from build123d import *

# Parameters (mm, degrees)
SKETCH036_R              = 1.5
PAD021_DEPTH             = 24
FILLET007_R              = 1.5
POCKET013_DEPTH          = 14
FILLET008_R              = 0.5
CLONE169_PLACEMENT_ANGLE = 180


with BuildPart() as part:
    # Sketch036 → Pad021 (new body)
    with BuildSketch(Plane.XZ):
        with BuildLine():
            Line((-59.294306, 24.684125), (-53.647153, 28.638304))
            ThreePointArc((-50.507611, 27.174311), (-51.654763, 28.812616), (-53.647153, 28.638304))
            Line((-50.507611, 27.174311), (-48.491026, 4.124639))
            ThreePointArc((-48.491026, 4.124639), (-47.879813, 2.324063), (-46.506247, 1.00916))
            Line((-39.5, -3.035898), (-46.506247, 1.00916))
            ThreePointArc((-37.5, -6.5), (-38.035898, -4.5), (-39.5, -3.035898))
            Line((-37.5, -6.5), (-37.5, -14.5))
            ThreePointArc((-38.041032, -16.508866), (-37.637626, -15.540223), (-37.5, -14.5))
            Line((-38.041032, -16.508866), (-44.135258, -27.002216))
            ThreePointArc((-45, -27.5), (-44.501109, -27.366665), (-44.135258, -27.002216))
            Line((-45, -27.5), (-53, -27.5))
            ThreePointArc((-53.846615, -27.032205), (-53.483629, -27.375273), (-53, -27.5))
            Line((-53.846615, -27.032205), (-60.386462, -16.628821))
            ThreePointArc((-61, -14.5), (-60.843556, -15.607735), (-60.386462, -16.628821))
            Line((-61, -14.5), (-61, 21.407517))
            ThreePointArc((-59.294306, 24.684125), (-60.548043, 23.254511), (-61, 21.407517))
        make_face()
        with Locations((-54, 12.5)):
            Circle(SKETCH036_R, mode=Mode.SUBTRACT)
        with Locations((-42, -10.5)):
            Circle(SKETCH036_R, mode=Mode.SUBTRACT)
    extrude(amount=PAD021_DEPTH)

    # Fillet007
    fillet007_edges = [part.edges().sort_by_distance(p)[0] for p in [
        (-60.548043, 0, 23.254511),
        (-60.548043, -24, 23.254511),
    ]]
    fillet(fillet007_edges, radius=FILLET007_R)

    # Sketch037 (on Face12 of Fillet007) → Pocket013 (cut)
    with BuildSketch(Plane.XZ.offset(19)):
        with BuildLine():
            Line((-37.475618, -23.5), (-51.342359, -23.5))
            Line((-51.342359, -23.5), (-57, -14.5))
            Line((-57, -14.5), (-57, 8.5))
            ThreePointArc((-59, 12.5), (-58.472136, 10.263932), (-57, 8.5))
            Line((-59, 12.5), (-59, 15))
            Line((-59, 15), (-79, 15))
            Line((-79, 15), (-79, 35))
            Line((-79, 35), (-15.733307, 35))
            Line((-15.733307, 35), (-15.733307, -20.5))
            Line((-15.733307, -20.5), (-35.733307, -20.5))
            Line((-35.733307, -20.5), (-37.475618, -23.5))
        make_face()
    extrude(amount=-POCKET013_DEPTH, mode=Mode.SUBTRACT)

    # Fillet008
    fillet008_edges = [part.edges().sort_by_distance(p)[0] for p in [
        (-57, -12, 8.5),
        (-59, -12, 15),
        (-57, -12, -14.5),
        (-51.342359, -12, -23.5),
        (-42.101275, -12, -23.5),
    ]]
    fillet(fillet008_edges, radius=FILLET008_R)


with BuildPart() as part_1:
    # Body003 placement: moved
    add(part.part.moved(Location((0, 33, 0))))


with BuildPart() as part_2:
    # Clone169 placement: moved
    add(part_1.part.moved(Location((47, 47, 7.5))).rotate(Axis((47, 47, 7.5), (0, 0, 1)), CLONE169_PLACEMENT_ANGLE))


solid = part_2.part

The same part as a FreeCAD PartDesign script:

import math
import FreeCAD as App
import Part
import Sketcher

V = App.Vector
Q = App.Units.Quantity


def edges_at(feature, points):
    """Names of the edges that pass closest to the given points."""
    edges = feature.Shape.Edges
    near = lambda p: min(range(len(edges)), key=lambda i: edges[i].distToShape(Part.Vertex(*p))[0])
    return sorted({f"Edge{near(p) + 1}" for p in points})

doc = App.newDocument("Part")
body = doc.addObject("PartDesign::Body", "Body")

# Sketch on XZ plane
sketch1 = doc.addObject("Sketcher::SketchObject", "Sketch")
body.addObject(sketch1)
sketch1.AttachmentSupport = (doc.XZ_Plane, [""])
sketch1.MapMode = "FlatFace"
sketch1.addGeometry([
    Part.LineSegment(V(-53.647153, 28.638304, 0), V(-59.294306, 24.684125, 0)),  # 0
    Part.ArcOfCircle(Part.Circle(V(-56.999996, 21.407515, 0), V(0, 0, 1), 4.000004), math.radians(125.000034), math.radians(179.99997)),  # 1
    Part.LineSegment(V(-61, 21.407517, 0), V(-61, -14.5, 0)),  # 2
    Part.ArcOfCircle(Part.Circle(V(-56.999993, -14.499999, 0), V(0, 0, 1), 4.000007), math.radians(-179.999982), math.radians(-147.845469)),  # 3
    Part.LineSegment(V(-60.386462, -16.628821, 0), V(-53.846615, -27.032205, 0)),  # 4
    Part.ArcOfCircle(Part.Circle(V(-53, -26.500001, 0), V(0, 0, 1), 0.999999), math.radians(-147.845478), math.radians(-89.999992)),  # 5
    Part.LineSegment(V(-53, -27.5, 0), V(-45, -27.5, 0)),  # 6
    Part.ArcOfCircle(Part.Circle(V(-44.999999, -26.500002, 0), V(0, 0, 1), 0.999998), math.radians(-90.000059), math.radians(-30.146647)),  # 7
    Part.LineSegment(V(-44.135258, -27.002216, 0), V(-38.041032, -16.508866, 0)),  # 8
    Part.ArcOfCircle(Part.Circle(V(-41.500015, -14.499996, 0), V(0, 0, 1), 4.000015), math.radians(-30.146683), math.radians(-0.000051)),  # 9
    Part.LineSegment(V(-37.5, -14.5, 0), V(-37.5, -6.5, 0)),  # 10
    Part.ArcOfCircle(Part.Circle(V(-41.499999, -6.499999, 0), V(0, 0, 1), 3.999999), math.radians(-0.000013), math.radians(60.000008)),  # 11
    Part.LineSegment(V(-39.5, -3.035898, 0), V(-46.506247, 1.00916, 0)),  # 12
    Part.ArcOfCircle(Part.Circle(V(-44.506249, 4.473261, 0), V(0, 0, 1), 3.999999), math.radians(-175.000014), math.radians(-119.999986)),  # 13
    Part.LineSegment(V(-48.491026, 4.124639, 0), V(-50.507611, 27.174311, 0)),  # 14
    Part.ArcOfCircle(Part.Circle(V(-52.5, 27.000002, 0), V(0, 0, 1), 1.999999), math.radians(4.999944), math.radians(125.000041)),  # 15
    Part.Circle(V(-42, -10.5, 0), V(0, 0, 1), 1.5),  # 16
    Part.Circle(V(-54, 12.5, 0), V(0, 0, 1), 1.5),  # 17
], False)
sketch1.addConstraint([
    Sketcher.Constraint("Tangent", 0, 2, 1, 1),
    Sketcher.Constraint("Tangent", 1, 2, 2, 1),
    Sketcher.Constraint("Tangent", 2, 2, 3, 1),
    Sketcher.Constraint("Tangent", 3, 2, 4, 1),
    Sketcher.Constraint("Tangent", 4, 2, 5, 1),
    Sketcher.Constraint("Tangent", 5, 2, 6, 1),
    Sketcher.Constraint("Tangent", 6, 2, 7, 1),
    Sketcher.Constraint("Tangent", 7, 2, 8, 1),
    Sketcher.Constraint("Tangent", 8, 2, 9, 1),
    Sketcher.Constraint("Tangent", 9, 2, 10, 1),
    Sketcher.Constraint("Tangent", 10, 2, 11, 1),
    Sketcher.Constraint("Tangent", 11, 2, 12, 1),
    Sketcher.Constraint("Tangent", 12, 2, 13, 2),
    Sketcher.Constraint("Tangent", 13, 1, 14, 1),
    Sketcher.Constraint("Tangent", 14, 2, 15, 1),
    Sketcher.Constraint("Tangent", 15, 2, 0, 1),
    Sketcher.Constraint("Vertical", 2),
    Sketcher.Constraint("Horizontal", 6),
    Sketcher.Constraint("Vertical", 10),
    Sketcher.Constraint("Equal", 5, 7),
    Sketcher.Constraint("Equal", 11, 13),
    Sketcher.Constraint("Equal", 16, 17),
    Sketcher.Constraint("Horizontal", 2, 2, 9, 2),
    Sketcher.Constraint("Equal", 6, 10),
    Sketcher.Constraint("Diameter", 16, 3.0),
    Sketcher.Constraint("Radius", 5, 0.999999),
    Sketcher.Constraint("Radius", 11, 3.999999),
    Sketcher.Constraint("Radius", 15, 1.999999),
    Sketcher.Constraint("DistanceX", 6, 1, 6, 2, 8.0),
    Sketcher.Constraint("Angle", 0, Q("-145.000001 deg")),
    Sketcher.Constraint("Angle", 12, Q("150.000004 deg")),
    Sketcher.Constraint("Angle", 14, Q("95 deg")),
    Sketcher.Constraint("DistanceX", 5, 3, -1, 1, 53.0),
    Sketcher.Constraint("DistanceY", -1, 1, 15, 3, 27.000002),
    Sketcher.Constraint("DistanceX", 16, 3, -1, 1, 42.0),
    Sketcher.Constraint("DistanceX", 17, 3, -1, 1, 54.0),
    Sketcher.Constraint("DistanceX", 1, 2, -1, 1, 61.0),
    Sketcher.Constraint("DistanceX", 15, 3, 11, 3, 11.0),
    Sketcher.Constraint("DistanceY", 16, 3, 11, 3, 4.000001),
    Sketcher.Constraint("DistanceY", 11, 3, 17, 3, 18.999999),
    Sketcher.Constraint("DistanceY", 5, 3, 2, 2, 12.000001),
    Sketcher.Constraint("DistanceY", 3, 3, -1, 1, 14.499999),
    Sketcher.Constraint("DistanceX", 11, 3, -1, 1, 41.499999),
    Sketcher.Constraint("Radius", 1, 4.000004),
    Sketcher.Constraint("Radius", 3, 4.000007),
    Sketcher.Constraint("Radius", 9, 4.000015),
])
pad1 = doc.addObject("PartDesign::Pad", "Pad")
body.addObject(pad1)
pad1.Profile = sketch1
pad1.Length = 24
doc.recompute()

fillet = doc.addObject("PartDesign::Fillet", "Fillet")
body.addObject(fillet)
fillet.Base = (pad1, edges_at(pad1, [(-60.548, 0, 23.255), (-60.548, -24, 23.255)]))
fillet.Radius = 1.5

# Sketch on XZ plane
sketch2 = doc.addObject("Sketcher::SketchObject", "Sketch001")
body.addObject(sketch2)
sketch2.AttachmentSupport = (doc.XZ_Plane, [""])
sketch2.MapMode = "FlatFace"
sketch2.AttachmentOffset = App.Placement(V(0, 0, 19), App.Rotation())
sketch2.addGeometry([
    Part.LineSegment(V(-51.342359, -23.5, 0), V(-37.475618, -23.5, 0)),  # 0
    Part.LineSegment(V(-37.475618, -23.5, 0), V(-35.733307, -20.5, 0)),  # 1
    Part.LineSegment(V(-35.733307, -20.5, 0), V(-15.733307, -20.5, 0)),  # 2
    Part.LineSegment(V(-15.733307, -20.5, 0), V(-15.733307, 35, 0)),  # 3
    Part.LineSegment(V(-15.733307, 35, 0), V(-79, 35, 0)),  # 4
    Part.LineSegment(V(-79, 35, 0), V(-79, 15, 0)),  # 5
    Part.LineSegment(V(-79, 15, 0), V(-59, 15, 0)),  # 6
    Part.LineSegment(V(-59, 15, 0), V(-59, 12.5, 0)),  # 7
    Part.ArcOfCircle(Part.Circle(V(-54, 12.5, 0), V(0, 0, 1), 5), math.radians(179.999998), math.radians(233.130105)),  # 8
    Part.LineSegment(V(-57, 8.5, 0), V(-57, -14.5, 0)),  # 9
    Part.LineSegment(V(-57, -14.5, 0), V(-51.342359, -23.5, 0)),  # 10
], False)
sketch2.addConstraint([
    Sketcher.Constraint("Coincident", 0, 2, 1, 1),
    Sketcher.Constraint("Coincident", 1, 2, 2, 1),
    Sketcher.Constraint("Coincident", 2, 2, 3, 1),
    Sketcher.Constraint("Coincident", 3, 2, 4, 1),
    Sketcher.Constraint("Coincident", 4, 2, 5, 1),
    Sketcher.Constraint("Coincident", 5, 2, 6, 1),
    Sketcher.Constraint("Coincident", 6, 2, 7, 1),
    Sketcher.Constraint("Tangent", 7, 2, 8, 1),
    Sketcher.Constraint("Coincident", 8, 2, 9, 1),
    Sketcher.Constraint("Coincident", 9, 2, 10, 1),
    Sketcher.Constraint("Coincident", 10, 2, 0, 1),
    Sketcher.Constraint("Horizontal", 0),
    Sketcher.Constraint("Horizontal", 2),
    Sketcher.Constraint("Vertical", 3),
    Sketcher.Constraint("Horizontal", 4),
    Sketcher.Constraint("Vertical", 5),
    Sketcher.Constraint("Horizontal", 6),
    Sketcher.Constraint("Vertical", 7),
    Sketcher.Constraint("Vertical", 9),
    Sketcher.Constraint("Equal", 2, 6),
    Sketcher.Constraint("Equal", 6, 5),
    Sketcher.Constraint("Radius", 8, 5.0),
    Sketcher.Constraint("DistanceX", 2, 1, 2, 2, 20.0),
    Sketcher.Constraint("DistanceY", 9, 2, 9, 1, 23.0),
    Sketcher.Constraint("DistanceY", 3, 1, 3, 2, 55.5),
    Sketcher.Constraint("DistanceY", 7, 2, 7, 1, 2.5),
    Sketcher.Constraint("DistanceX", 8, 3, -1, 1, 54.0),
    Sketcher.Constraint("DistanceY", -1, 1, 3, 2, 35.0),
    Sketcher.Constraint("DistanceX", 8, 2, -1, 1, 57.0),
    Sketcher.Constraint("DistanceY", 0, 2, 8, 3, 36.0),
    Sketcher.Constraint("DistanceX", 0, 1, 0, 2, 13.866741),
    Sketcher.Constraint("DistanceX", 4, 2, 4, 1, 63.266693),
    Sketcher.Constraint("DistanceX", 10, 2, -1, 1, 51.342359),
])
pocket1 = doc.addObject("PartDesign::Pocket", "Pocket")
body.addObject(pocket1)
pocket1.Profile = sketch2
pocket1.Length = 14
doc.recompute()

fillet2 = doc.addObject("PartDesign::Fillet", "Fillet001")
body.addObject(fillet2)
fillet2.Base = (pocket1, edges_at(pocket1, [
    (-57, -12, 8.5),
    (-59, -12, 15),
    (-57, -12, -14.5),
    (-51.342, -12, -23.5),
    (-42.101, -12, -23.5),
]))
fillet2.Radius = 0.5
body2 = doc.addObject("PartDesign::Body", "Body001")
doc.recompute()

body.Placement = App.Placement(V(0, 33, 0), App.Rotation(V(0, 0, 1), 0))
boolean = doc.addObject("PartDesign::Boolean", "Boolean")
body2.addObject(boolean)
boolean.Type = "Fuse"
boolean.addObjects([body])
body3 = doc.addObject("PartDesign::Body", "Body002")
doc.recompute()

body2.Placement = App.Placement(V(47, 47, 7.5), App.Rotation(V(0, 0, 1), 180))
boolean2 = doc.addObject("PartDesign::Boolean", "Boolean001")
body3.addObject(boolean2)
boolean2.Type = "Fuse"
boolean2.addObjects([body2])

doc.recompute()
